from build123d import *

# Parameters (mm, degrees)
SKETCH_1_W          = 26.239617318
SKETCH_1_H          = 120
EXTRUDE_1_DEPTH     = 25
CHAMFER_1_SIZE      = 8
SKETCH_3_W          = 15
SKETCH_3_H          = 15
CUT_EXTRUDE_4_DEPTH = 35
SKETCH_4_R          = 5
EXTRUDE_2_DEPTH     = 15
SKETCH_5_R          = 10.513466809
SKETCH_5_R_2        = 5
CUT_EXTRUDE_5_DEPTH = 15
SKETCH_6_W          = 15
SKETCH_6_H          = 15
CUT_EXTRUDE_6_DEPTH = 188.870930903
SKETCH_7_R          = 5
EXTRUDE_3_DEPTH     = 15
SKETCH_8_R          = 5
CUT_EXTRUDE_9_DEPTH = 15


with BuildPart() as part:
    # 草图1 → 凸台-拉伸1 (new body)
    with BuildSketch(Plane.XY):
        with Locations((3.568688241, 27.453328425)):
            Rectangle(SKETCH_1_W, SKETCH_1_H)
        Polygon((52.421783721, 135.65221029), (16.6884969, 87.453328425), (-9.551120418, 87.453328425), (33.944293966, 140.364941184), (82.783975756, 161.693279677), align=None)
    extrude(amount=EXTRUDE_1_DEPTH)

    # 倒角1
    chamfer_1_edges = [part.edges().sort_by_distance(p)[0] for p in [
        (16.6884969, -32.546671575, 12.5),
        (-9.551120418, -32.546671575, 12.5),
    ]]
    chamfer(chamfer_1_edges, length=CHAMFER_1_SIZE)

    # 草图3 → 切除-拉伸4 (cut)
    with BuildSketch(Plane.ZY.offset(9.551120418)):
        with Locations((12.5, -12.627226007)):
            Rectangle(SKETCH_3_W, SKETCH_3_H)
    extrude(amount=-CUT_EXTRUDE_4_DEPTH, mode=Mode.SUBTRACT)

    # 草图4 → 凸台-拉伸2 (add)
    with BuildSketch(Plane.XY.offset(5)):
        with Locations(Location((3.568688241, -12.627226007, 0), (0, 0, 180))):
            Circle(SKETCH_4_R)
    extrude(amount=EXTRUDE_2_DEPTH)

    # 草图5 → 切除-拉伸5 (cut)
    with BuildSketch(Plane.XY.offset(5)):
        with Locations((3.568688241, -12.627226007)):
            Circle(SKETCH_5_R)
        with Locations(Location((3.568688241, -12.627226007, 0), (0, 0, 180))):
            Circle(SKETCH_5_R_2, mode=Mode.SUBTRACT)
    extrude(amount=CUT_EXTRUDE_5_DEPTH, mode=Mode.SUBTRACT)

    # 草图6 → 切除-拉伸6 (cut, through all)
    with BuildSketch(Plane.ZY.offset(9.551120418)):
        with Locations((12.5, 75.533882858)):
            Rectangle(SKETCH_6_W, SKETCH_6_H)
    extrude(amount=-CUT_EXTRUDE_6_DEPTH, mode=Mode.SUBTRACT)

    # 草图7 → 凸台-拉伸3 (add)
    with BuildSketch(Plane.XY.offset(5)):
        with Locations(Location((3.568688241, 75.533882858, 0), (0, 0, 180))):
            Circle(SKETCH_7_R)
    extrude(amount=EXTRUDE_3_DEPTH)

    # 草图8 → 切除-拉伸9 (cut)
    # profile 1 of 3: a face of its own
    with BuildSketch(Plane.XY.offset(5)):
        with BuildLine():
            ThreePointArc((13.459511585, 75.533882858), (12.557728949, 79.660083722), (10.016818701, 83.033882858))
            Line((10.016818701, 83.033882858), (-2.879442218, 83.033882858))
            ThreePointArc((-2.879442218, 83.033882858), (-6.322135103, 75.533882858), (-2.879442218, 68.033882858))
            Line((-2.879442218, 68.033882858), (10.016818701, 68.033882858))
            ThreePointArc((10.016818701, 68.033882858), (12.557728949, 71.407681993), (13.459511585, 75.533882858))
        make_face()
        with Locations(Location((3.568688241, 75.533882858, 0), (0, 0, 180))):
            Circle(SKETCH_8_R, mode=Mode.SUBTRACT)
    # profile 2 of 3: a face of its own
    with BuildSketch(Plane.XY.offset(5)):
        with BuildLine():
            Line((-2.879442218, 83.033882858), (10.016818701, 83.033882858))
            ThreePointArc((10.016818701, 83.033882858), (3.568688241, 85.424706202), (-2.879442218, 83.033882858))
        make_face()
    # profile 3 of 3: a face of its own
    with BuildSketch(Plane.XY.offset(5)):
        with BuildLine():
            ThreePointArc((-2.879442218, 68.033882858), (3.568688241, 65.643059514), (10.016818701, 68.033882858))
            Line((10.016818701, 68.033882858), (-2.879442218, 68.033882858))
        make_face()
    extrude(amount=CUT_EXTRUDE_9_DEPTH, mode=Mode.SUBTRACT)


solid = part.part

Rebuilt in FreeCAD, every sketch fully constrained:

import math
import FreeCAD as App
import Part
import Sketcher


def edges_at(feature, points):
    """Names of the edges that pass closest to the given points."""
    edges = feature.Shape.Edges
    near = lambda p: min(range(len(edges)), key=lambda i: edges[i].distToShape(Part.Vertex(*p))[0])
    return sorted({f"Edge{near(p) + 1}" for p in points})


def add_polygon(sketch, points):
    """Adds a closed chain of lines whose ends are joined by coincident constraints."""
    first, n = sketch.GeometryCount, len(points)
    for a, b in zip(points, points[1:] + points[:1]):
        sketch.addGeometry(Part.LineSegment(App.Vector(*a, 0), App.Vector(*b, 0)), False)
    for i in range(n):
        sketch.addConstraint(Sketcher.Constraint("Coincident", first + i, 2, first + (i + 1) % n, 1))

doc = App.newDocument("Part")
body = doc.addObject("PartDesign::Body", "Body")

# Sketch on XY plane
sketch1 = body.newObject("Sketcher::SketchObject", "Sketch")
sketch1.AttachmentSupport = (doc.getObject("XY_Plane"), [""])
sketch1.MapMode = "FlatFace"
add_polygon(sketch1, [(-10, 87), (-10, -33), (17, -33), (17, 87), (52, 136), (83, 162), (34, 140)])  # lines 0-6
sketch1.addConstraint([
    Sketcher.Constraint("Vertical", 0),
    Sketcher.Constraint("Horizontal", 1),
    Sketcher.Constraint("Vertical", 2),
    Sketcher.Constraint("Horizontal", 2, 2, 6, 2),
    Sketcher.Constraint("DistanceY", 0, 2, 0, 1, 120.0),
    Sketcher.Constraint("Distance", 3, 60.0),
    Sketcher.Constraint("Distance", 4, 40.0),
    Sketcher.Constraint("Distance", 6, 68.494451),
    Sketcher.Constraint("DistanceX", 1, 1, 1, 2, 26.239617),
    Sketcher.Constraint("DistanceX", 0, 2, -1, 1, 9.55112),
    Sketcher.Constraint("DistanceY", 0, 2, -1, 1, 32.546672),
    Sketcher.Constraint("DistanceY", -1, 1, 3, 2, 135.65221),
    Sketcher.Constraint("DistanceY", -1, 1, 4, 2, 161.69328),
    Sketcher.Constraint("DistanceY", -1, 1, 5, 2, 140.364941),
])
pad1 = body.newObject("PartDesign::Pad", "Pad")
pad1.Profile = sketch1
pad1.Length = 25
doc.recompute()

chamfer = body.newObject("PartDesign::Chamfer", "Chamfer")
chamfer.Base = (pad1, edges_at(pad1, [(16.688, -32.547, 12.5), (-9.551, -32.547, 12.5)]))
chamfer.Size = 8

# Sketch on YZ plane
sketch2 = body.newObject("Sketcher::SketchObject", "Sketch001")
sketch2.AttachmentSupport = (doc.getObject("YZ_Plane"), [""])
sketch2.MapMode = "FlatFace"
sketch2.AttachmentOffset = App.Placement(App.Vector(0, 0, -9.55112), App.Rotation())
add_polygon(sketch2, [(-5, 5), (-20, 5), (-20, 20), (-5, 20)])  # lines 0-3
sketch2.addConstraint([
    Sketcher.Constraint("Horizontal", 0),
    Sketcher.Constraint("Vertical", 1),
    Sketcher.Constraint("Horizontal", 2),
    Sketcher.Constraint("Vertical", 3),
    Sketcher.Constraint("Equal", 2, 1),
    Sketcher.Constraint("DistanceX", 0, 2, 0, 1, 15.0),
    Sketcher.Constraint("DistanceY", -1, 1, 0, 2, 5.0),
    Sketcher.Constraint("DistanceX", 0, 2, -1, 1, 20.127226),
])
pocket1 = body.newObject("PartDesign::Pocket", "Pocket")
pocket1.Profile = sketch2
pocket1.Length = 35
pocket1.Reversed = True

# Sketch on XY plane
sketch3 = body.newObject("Sketcher::SketchObject", "Sketch002")
sketch3.AttachmentSupport = (doc.getObject("XY_Plane"), [""])
sketch3.MapMode = "FlatFace"
sketch3.AttachmentOffset = App.Placement(App.Vector(0, 0, 5), App.Rotation())
sketch3.addGeometry(Part.Circle(App.Vector(4, -13, 0), App.Vector(0, 0, 1), 5), False)
sketch3.addConstraint([
    Sketcher.Constraint("Diameter", 0, 10.0),
    Sketcher.Constraint("DistanceX", -1, 1, 0, 3, 3.568688),
    Sketcher.Constraint("DistanceY", 0, 3, -1, 1, 12.627226),
])
pad2 = body.newObject("PartDesign::Pad", "Pad001")
pad2.Profile = sketch3
pad2.Length = 15

# Sketch on XY plane
sketch4 = body.newObject("Sketcher::SketchObject", "Sketch003")
sketch4.AttachmentSupport = (doc.getObject("XY_Plane"), [""])
sketch4.MapMode = "FlatFace"
sketch4.AttachmentOffset = App.Placement(App.Vector(0, 0, 5), App.Rotation())
sketch4.addGeometry([
    Part.Circle(App.Vector(4, -13, 0), App.Vector(0, 0, 1), 11),
    Part.Circle(App.Vector(4, -13, 0), App.Vector(0, 0, 1), 5),
], False)
sketch4.addConstraint([
    Sketcher.Constraint("Coincident", 1, 3, 0, 3),
    Sketcher.Constraint("Diameter", 1, 10.0),
    Sketcher.Constraint("Diameter", 0, 21.026934),
    Sketcher.Constraint("DistanceX", -1, 1, 0, 3, 3.568688),
    Sketcher.Constraint("DistanceY", 0, 3, -1, 1, 12.627226),
])
pocket2 = body.newObject("PartDesign::Pocket", "Pocket001")
pocket2.Profile = sketch4
pocket2.Length = 15
pocket2.Reversed = True

# Sketch on YZ plane
sketch5 = body.newObject("Sketcher::SketchObject", "Sketch004")
sketch5.AttachmentSupport = (doc.getObject("YZ_Plane"), [""])
sketch5.MapMode = "FlatFace"
sketch5.AttachmentOffset = App.Placement(App.Vector(0, 0, -9.55112), App.Rotation())
add_polygon(sketch5, [(83, 5), (68, 5), (68, 20), (83, 20)])  # lines 0-3
sketch5.addConstraint([
    Sketcher.Constraint("Horizontal", 0),
    Sketcher.Constraint("Vertical", 1),
    Sketcher.Constraint("Horizontal", 2),
    Sketcher.Constraint("Vertical", 3),
    Sketcher.Constraint("Equal", 2, 1),
    Sketcher.Constraint("DistanceX", 0, 2, 0, 1, 15.0),
    Sketcher.Constraint("DistanceY", -1, 1, 0, 2, 5.0),
    Sketcher.Constraint("DistanceX", -1, 1, 0, 2, 68.033883),
])
pocket3 = body.newObject("PartDesign::Pocket", "Pocket002")
pocket3.Profile = sketch5
pocket3.Type = "ThroughAll"
pocket3.Reversed = True

# Sketch on XY plane
sketch6 = body.newObject("Sketcher::SketchObject", "Sketch005")
sketch6.AttachmentSupport = (doc.getObject("XY_Plane"), [""])
sketch6.MapMode = "FlatFace"
sketch6.AttachmentOffset = App.Placement(App.Vector(0, 0, 5), App.Rotation())
sketch6.addGeometry(Part.Circle(App.Vector(4, 76, 0), App.Vector(0, 0, 1), 5), False)
sketch6.addConstraint([
    Sketcher.Constraint("Diameter", 0, 10.0),
    Sketcher.Constraint("DistanceX", -1, 1, 0, 3, 3.568688),
    Sketcher.Constraint("DistanceY", -1, 1, 0, 3, 75.533883),
])
pad3 = body.newObject("PartDesign::Pad", "Pad002")
pad3.Profile = sketch6
pad3.Length = 15

# Sketch on XY plane
sketch7 = body.newObject("Sketcher::SketchObject", "Sketch006")
sketch7.AttachmentSupport = (doc.getObject("XY_Plane"), [""])
sketch7.MapMode = "FlatFace"
sketch7.AttachmentOffset = App.Placement(App.Vector(0, 0, 5), App.Rotation())
sketch7.addGeometry([
    Part.ArcOfCircle(Part.Circle(App.Vector(4, 76, 0), App.Vector(0, 0, 1), 10), math.radians(0), math.radians(49)),  # 0
    Part.ArcOfCircle(Part.Circle(App.Vector(4, 76, 0), App.Vector(0, 0, 1), 10), math.radians(49), math.radians(131)),  # 1
    Part.ArcOfCircle(Part.Circle(App.Vector(4, 76, 0), App.Vector(0, 0, 1), 10), math.radians(131), math.radians(229)),  # 2
    Part.ArcOfCircle(Part.Circle(App.Vector(4, 76, 0), App.Vector(0, 0, 1), 10), math.radians(-131), math.radians(-49)),  # 3
    Part.ArcOfCircle(Part.Circle(App.Vector(4, 76, 0), App.Vector(0, 0, 1), 10), math.radians(-49), math.radians(0)),  # 4
    Part.Circle(App.Vector(4, 76, 0), App.Vector(0, 0, 1), 5),  # 5
], False)
sketch7.addConstraint([
    Sketcher.Constraint("Tangent", 0, 2, 1, 1),
    Sketcher.Constraint("Tangent", 1, 2, 2, 1),
    Sketcher.Constraint("Tangent", 2, 2, 3, 1),
    Sketcher.Constraint("Tangent", 3, 2, 4, 1),
    Sketcher.Constraint("Tangent", 4, 2, 0, 1),
    Sketcher.Constraint("Coincident", 2, 3, 0, 3),
    Sketcher.Constraint("Coincident", 5, 3, 0, 3),
    Sketcher.Constraint("Horizontal", 0, 2, 1, 2),
    Sketcher.Constraint("Horizontal", 2, 2, 3, 2),
    Sketcher.Constraint("Horizontal", 5, 3, 4, 2),
    Sketcher.Constraint("Vertical", 1, 2, 2, 2),
    Sketcher.Constraint("Diameter", 5, 10.0),
    Sketcher.Constraint("DistanceY", 3, 3, 0, 2, 7.5),
    Sketcher.Constraint("Radius", 0, 9.890823),
    Sketcher.Constraint("DistanceX", -1, 1, 0, 3, 3.568688),
    Sketcher.Constraint("DistanceY", -1, 1, 0, 3, 75.533883),
])
pocket4 = body.newObject("PartDesign::Pocket", "Pocket003")
pocket4.Profile = sketch7
pocket4.Length = 15
pocket4.Reversed = True

doc.recompute()
